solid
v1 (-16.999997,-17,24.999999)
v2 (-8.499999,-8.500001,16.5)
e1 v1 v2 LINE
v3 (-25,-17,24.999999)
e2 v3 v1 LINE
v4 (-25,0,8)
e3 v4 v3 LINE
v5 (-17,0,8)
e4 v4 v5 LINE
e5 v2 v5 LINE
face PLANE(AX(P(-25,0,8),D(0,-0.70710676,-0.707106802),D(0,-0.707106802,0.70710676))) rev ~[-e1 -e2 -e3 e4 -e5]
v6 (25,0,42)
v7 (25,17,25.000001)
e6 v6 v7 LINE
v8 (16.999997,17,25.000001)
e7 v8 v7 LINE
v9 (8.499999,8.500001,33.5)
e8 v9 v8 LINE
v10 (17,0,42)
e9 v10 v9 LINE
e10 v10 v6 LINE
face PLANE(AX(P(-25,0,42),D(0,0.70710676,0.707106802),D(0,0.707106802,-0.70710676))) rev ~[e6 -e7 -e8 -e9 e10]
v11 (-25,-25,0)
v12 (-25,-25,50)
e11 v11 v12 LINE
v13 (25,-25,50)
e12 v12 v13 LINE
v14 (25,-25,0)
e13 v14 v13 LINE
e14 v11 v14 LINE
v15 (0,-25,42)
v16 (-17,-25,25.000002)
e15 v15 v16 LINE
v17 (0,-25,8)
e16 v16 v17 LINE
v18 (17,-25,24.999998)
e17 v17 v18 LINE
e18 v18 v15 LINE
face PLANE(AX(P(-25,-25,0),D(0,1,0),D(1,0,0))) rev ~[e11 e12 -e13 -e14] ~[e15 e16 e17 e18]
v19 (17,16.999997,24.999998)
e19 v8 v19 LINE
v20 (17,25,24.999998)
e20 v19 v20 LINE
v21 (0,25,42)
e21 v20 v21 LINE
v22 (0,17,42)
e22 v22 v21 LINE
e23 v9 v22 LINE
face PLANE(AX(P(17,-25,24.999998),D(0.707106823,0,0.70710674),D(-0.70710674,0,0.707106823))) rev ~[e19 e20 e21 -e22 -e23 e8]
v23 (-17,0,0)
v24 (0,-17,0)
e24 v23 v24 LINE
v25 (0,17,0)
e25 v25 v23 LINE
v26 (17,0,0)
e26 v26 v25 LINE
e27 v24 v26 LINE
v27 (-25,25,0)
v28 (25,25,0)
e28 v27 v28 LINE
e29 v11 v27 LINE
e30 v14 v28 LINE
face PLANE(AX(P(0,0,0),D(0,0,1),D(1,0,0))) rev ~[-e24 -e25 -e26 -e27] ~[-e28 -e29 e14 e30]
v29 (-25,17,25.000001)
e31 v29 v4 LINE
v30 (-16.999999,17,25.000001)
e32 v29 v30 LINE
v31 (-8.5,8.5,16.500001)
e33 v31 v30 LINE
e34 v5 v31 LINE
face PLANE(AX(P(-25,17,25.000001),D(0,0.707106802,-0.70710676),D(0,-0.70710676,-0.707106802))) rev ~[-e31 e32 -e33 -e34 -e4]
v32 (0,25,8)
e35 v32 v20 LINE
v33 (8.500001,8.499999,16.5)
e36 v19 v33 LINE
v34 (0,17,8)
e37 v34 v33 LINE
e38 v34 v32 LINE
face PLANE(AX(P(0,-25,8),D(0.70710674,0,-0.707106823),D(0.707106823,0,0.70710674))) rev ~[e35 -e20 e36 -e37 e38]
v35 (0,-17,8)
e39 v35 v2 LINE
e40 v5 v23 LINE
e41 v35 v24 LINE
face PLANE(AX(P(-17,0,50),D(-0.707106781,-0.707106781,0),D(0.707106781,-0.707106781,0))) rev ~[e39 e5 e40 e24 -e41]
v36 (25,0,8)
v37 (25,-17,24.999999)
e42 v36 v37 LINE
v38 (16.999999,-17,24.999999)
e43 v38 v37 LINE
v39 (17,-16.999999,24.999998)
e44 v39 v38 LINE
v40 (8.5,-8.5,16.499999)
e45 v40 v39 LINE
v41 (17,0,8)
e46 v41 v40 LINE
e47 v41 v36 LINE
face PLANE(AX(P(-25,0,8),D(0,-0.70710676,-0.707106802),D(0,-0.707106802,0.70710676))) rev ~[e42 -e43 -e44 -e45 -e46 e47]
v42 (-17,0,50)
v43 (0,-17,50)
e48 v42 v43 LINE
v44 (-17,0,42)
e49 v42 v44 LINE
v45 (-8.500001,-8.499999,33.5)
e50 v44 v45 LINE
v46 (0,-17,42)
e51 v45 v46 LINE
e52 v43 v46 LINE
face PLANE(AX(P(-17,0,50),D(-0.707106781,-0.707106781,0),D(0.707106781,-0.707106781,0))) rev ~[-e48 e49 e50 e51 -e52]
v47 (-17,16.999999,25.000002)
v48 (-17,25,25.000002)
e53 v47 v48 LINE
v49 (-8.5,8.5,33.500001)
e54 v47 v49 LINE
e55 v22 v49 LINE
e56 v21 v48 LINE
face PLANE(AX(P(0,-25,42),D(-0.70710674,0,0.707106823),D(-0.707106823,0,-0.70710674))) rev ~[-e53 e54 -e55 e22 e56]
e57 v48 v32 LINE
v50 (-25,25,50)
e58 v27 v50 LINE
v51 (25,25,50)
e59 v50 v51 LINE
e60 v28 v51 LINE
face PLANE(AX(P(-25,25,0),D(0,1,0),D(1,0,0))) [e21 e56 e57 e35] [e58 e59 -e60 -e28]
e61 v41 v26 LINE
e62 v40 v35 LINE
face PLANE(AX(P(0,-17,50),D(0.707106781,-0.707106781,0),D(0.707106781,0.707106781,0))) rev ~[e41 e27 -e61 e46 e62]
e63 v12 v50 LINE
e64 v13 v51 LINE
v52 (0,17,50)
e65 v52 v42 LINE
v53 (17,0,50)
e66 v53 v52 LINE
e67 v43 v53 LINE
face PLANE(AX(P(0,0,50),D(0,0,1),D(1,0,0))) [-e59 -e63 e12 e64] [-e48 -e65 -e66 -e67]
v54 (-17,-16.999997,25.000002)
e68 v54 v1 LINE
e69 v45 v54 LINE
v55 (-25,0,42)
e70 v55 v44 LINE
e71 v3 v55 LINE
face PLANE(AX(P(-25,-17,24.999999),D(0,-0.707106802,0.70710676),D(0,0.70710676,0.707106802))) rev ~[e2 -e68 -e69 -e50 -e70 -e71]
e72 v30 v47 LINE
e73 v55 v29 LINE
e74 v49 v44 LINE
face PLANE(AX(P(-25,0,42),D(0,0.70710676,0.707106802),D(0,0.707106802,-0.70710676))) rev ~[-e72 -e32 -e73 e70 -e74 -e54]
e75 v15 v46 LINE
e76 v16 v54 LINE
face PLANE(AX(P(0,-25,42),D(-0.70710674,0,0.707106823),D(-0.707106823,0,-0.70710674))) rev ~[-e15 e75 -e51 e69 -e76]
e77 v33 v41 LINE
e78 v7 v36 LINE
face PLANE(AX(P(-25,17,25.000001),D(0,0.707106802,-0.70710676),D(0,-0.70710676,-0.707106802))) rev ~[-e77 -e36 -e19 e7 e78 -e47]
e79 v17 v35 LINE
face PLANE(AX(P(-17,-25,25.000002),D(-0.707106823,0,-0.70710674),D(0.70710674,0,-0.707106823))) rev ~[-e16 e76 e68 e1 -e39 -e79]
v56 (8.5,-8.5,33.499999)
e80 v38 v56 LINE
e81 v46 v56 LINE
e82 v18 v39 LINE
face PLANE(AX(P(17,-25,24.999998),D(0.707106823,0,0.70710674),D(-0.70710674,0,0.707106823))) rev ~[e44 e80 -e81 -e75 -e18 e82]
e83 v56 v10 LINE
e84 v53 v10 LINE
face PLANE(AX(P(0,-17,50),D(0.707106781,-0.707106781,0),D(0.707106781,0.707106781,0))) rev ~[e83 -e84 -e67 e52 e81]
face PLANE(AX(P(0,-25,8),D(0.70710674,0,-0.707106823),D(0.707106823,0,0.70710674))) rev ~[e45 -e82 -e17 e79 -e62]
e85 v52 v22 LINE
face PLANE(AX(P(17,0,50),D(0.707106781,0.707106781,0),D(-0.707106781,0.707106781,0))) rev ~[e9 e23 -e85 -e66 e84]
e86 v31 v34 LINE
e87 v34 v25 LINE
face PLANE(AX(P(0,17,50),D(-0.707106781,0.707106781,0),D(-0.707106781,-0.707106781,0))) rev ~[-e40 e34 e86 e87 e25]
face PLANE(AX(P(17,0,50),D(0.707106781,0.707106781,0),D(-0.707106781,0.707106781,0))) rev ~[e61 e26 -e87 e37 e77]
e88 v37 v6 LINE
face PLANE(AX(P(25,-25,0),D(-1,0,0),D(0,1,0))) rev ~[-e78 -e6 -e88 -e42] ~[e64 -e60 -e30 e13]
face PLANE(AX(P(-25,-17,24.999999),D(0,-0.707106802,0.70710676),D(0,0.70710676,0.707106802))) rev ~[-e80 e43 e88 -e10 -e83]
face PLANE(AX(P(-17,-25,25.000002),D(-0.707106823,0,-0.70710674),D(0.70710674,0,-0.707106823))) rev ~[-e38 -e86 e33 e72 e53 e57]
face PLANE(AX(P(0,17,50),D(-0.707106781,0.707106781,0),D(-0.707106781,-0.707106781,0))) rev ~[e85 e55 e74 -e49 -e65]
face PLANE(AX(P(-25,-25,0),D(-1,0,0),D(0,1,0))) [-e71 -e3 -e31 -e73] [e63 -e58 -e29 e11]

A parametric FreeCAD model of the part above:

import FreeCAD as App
import Part
import Sketcher

V = App.Vector

doc = App.newDocument("Part")
body = doc.addObject("PartDesign::Body", "Body")

sketch1 = body.newObject("Sketcher::SketchObject", "Sketch")
sketch1.AttachmentSupport = (doc.getObject("XY_Plane"), [""])
sketch1.MapMode = "FlatFace"
sketch1.addGeometry([
    Part.LineSegment(V(-25, 25, 0), V(-25, -25, 0)),
    Part.LineSegment(V(-25, -25, 0), V(25, -25, 0)),
    Part.LineSegment(V(25, -25, 0), V(25, 25, 0)),
    Part.LineSegment(V(25, 25, 0), V(-25, 25, 0)),
], False)
sketch1.addConstraint([
    Sketcher.Constraint("Coincident", 0, 2, 1, 1),
    Sketcher.Constraint("Coincident", 1, 2, 2, 1),
    Sketcher.Constraint("Coincident", 2, 2, 3, 1),
    Sketcher.Constraint("Coincident", 3, 2, 0, 1),
    Sketcher.Constraint("Vertical", 0),
    Sketcher.Constraint("Horizontal", 1),
    Sketcher.Constraint("Vertical", 2),
    Sketcher.Constraint("Horizontal", 3),
    Sketcher.Constraint("Symmetric", 0, 2, 2, 2, -1, 1),
    Sketcher.Constraint("Equal", 3, 0),
    Sketcher.Constraint("DistanceX", 1, 1, 1, 2, 50.0),
])
pad1 = body.newObject("PartDesign::Pad", "Pad")
pad1.Profile = sketch1
pad1.Length = 50

sketch2 = body.newObject("Sketcher::SketchObject", "Sketch001")
sketch2.AttachmentSupport = (doc.getObject("YZ_Plane"), [""])
sketch2.MapMode = "FlatFace"
sketch2.AttachmentOffset = App.Placement(V(0, 0, -25), App.Rotation())
sketch2.addGeometry([
    Part.LineSegment(V(-17, 24.999999, 0), V(0, 42, 0)),
    Part.LineSegment(V(0, 42, 0), V(17, 25.000001, 0)),
    Part.LineSegment(V(17, 25.000001, 0), V(0, 8, 0)),
    Part.LineSegment(V(0, 8, 0), V(-17, 24.999999, 0)),
], False)
sketch2.addConstraint([
    Sketcher.Constraint("Coincident", 0, 2, 1, 1),
    Sketcher.Constraint("Coincident", 1, 2, 2, 1),
    Sketcher.Constraint("Coincident", 2, 2, 3, 1),
    Sketcher.Constraint("Coincident", 3, 2, 0, 1),
    Sketcher.Constraint("Symmetric", 1, 2, 3, 2, -2),
    Sketcher.Constraint("PointOnObject", 0, 2, -2),
    Sketcher.Constraint("PointOnObject", 2, 2, -2),
    Sketcher.Constraint("Perpendicular", 0, 1),
    Sketcher.Constraint("Perpendicular", 1, 2),
    Sketcher.Constraint("DistanceY", -1, 1, 0, 2, 42.0),
    Sketcher.Constraint("DistanceX", -1, 1, 1, 2, 17.0),
])
pocket1 = body.newObject("PartDesign::Pocket", "Pocket")
pocket1.Profile = sketch2
pocket1.Length = 50
pocket1.Reversed = True

sketch3 = body.newObject("Sketcher::SketchObject", "Sketch002")
sketch3.AttachmentSupport = (doc.getObject("XZ_Plane"), [""])
sketch3.MapMode = "FlatFace"
sketch3.AttachmentOffset = App.Placement(V(0, 0, 25), App.Rotation())
sketch3.addGeometry([
    Part.LineSegment(V(17, 24.999998, 0), V(0, 42, 0)),
    Part.LineSegment(V(0, 42, 0), V(-17, 25.000002, 0)),
    Part.LineSegment(V(-17, 25.000002, 0), V(0, 8, 0)),
    Part.LineSegment(V(0, 8, 0), V(17, 24.999998, 0)),
], False)
sketch3.addConstraint([
    Sketcher.Constraint("Coincident", 0, 2, 1, 1),
    Sketcher.Constraint("Coincident", 1, 2, 2, 1),
    Sketcher.Constraint("Coincident", 2, 2, 3, 1),
    Sketcher.Constraint("Coincident", 3, 2, 0, 1),
    Sketcher.Constraint("Symmetric", 1, 2, 3, 2, -2),
    Sketcher.Constraint("PointOnObject", 0, 2, -2),
    Sketcher.Constraint("PointOnObject", 2, 2, -2),
    Sketcher.Constraint("Perpendicular", 0, 1),
    Sketcher.Constraint("Perpendicular", 1, 2),
    Sketcher.Constraint("DistanceY", -1, 1, 0, 2, 42.0),
    Sketcher.Constraint("DistanceX", 1, 2, -1, 1, 17.0),
])
pocket2 = body.newObject("PartDesign::Pocket", "Pocket001")
pocket2.Profile = sketch3
pocket2.Length = 50

sketch4 = body.newObject("Sketcher::SketchObject", "Sketch003")
sketch4.AttachmentSupport = (doc.getObject("XY_Plane"), [""])
sketch4.MapMode = "FlatFace"
sketch4.AttachmentOffset = App.Placement(V(0, 0, 50), App.Rotation())
sketch4.addGeometry([
    Part.LineSegment(V(17, 0, 0), V(0, 17, 0)),
    Part.LineSegment(V(0, 17, 0), V(-17, 0, 0)),
    Part.LineSegment(V(-17, 0, 0), V(0, -17, 0)),
    Part.LineSegment(V(0, -17, 0), V(17, 0, 0)),
], False)
sketch4.addConstraint([
    Sketcher.Constraint("Coincident", 0, 2, 1, 1),
    Sketcher.Constraint("Coincident", 1, 2, 2, 1),
    Sketcher.Constraint("Coincident", 2, 2, 3, 1),
    Sketcher.Constraint("Coincident", 3, 2, 0, 1),
    Sketcher.Constraint("Symmetric", 0, 2, 2, 2, -1, 1),
    Sketcher.Constraint("Symmetric", 1, 2, 3, 2, -1, 1),
    Sketcher.Constraint("PointOnObject", 0, 2, -2),
    Sketcher.Constraint("PointOnObject", 1, 2, -1),
    Sketcher.Constraint("Perpendicular", 0, 1),
    Sketcher.Constraint("DistanceY", -1, 1, 0, 2, 17.0),
])
pocket3 = body.newObject("PartDesign::Pocket", "Pocket002")
pocket3.Profile = sketch4
pocket3.Length = 50

doc.recompute()
